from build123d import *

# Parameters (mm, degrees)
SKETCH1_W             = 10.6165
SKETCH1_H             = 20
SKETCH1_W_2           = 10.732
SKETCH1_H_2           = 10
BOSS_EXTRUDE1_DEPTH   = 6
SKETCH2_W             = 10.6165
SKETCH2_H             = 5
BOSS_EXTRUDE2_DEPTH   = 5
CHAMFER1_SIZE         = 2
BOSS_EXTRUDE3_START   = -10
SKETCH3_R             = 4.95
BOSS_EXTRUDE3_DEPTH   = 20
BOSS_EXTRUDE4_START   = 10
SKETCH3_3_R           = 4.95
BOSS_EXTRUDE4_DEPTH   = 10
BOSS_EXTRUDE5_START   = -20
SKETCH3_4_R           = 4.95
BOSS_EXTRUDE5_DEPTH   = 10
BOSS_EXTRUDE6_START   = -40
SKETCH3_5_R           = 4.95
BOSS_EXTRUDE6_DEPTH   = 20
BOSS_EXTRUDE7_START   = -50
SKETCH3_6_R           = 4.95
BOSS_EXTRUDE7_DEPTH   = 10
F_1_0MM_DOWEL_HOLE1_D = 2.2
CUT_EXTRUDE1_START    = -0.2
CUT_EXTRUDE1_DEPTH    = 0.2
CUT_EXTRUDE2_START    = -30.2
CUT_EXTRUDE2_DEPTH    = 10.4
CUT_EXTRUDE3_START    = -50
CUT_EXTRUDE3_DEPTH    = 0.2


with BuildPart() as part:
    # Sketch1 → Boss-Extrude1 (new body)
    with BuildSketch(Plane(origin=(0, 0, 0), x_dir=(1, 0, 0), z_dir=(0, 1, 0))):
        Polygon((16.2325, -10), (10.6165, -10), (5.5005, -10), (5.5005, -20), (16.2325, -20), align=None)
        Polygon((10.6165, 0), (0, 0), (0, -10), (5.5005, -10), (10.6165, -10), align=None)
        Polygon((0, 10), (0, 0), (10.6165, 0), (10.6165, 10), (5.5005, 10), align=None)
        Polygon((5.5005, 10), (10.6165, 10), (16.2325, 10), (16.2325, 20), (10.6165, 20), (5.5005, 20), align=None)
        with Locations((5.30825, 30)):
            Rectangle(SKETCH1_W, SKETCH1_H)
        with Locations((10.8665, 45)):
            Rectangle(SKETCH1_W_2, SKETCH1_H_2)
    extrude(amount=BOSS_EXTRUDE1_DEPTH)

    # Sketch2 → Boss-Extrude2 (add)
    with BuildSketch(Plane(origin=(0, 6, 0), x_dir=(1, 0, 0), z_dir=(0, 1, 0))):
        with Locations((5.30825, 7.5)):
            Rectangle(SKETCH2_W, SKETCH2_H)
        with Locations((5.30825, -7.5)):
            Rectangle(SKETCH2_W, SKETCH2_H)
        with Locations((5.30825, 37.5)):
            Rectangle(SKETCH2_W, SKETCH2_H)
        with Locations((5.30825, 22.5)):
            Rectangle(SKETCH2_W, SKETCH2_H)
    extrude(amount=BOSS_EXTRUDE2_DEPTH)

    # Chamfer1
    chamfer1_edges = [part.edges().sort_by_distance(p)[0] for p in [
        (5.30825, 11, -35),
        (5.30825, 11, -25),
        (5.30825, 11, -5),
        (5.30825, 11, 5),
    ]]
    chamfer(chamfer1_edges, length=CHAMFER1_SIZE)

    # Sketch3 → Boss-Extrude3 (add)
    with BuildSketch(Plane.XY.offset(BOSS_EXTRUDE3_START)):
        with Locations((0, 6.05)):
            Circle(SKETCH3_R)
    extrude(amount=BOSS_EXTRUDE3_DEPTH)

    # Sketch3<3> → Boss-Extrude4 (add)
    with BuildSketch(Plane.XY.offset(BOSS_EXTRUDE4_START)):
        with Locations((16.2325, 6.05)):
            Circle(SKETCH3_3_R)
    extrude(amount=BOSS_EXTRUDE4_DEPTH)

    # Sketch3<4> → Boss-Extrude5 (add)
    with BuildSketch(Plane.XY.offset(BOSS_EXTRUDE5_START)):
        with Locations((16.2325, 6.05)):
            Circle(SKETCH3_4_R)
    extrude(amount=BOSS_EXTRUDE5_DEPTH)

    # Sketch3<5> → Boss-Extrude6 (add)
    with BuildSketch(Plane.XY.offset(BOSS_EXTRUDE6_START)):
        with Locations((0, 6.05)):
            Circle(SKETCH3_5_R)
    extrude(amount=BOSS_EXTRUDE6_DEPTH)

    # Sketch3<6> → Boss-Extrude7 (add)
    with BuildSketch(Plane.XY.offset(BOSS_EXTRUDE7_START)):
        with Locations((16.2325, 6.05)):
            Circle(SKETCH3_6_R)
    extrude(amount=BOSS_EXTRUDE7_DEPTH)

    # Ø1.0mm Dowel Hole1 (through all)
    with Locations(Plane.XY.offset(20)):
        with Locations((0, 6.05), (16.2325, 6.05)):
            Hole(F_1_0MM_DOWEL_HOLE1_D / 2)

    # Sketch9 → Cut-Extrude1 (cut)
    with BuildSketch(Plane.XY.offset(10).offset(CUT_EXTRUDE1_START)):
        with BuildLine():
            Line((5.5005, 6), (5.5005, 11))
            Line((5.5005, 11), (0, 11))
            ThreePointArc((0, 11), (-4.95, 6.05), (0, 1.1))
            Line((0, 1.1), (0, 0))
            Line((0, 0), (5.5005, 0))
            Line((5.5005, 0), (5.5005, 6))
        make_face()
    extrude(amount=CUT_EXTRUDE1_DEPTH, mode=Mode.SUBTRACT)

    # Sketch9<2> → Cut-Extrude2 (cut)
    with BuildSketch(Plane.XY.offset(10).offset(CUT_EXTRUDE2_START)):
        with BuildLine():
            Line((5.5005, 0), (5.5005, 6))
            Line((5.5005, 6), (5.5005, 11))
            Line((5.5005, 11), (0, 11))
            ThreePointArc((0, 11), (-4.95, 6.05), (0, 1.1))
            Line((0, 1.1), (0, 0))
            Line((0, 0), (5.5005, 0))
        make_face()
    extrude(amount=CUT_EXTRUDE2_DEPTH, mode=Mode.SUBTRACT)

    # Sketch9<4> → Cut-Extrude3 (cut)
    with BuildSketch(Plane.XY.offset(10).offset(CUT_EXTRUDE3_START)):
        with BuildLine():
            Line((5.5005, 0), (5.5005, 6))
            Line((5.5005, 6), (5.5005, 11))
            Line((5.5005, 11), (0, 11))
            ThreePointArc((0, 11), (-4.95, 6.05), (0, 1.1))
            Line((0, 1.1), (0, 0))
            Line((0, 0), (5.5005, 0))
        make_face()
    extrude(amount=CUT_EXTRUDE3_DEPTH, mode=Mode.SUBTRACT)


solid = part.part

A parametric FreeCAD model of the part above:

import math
import FreeCAD as App
import Part
import Sketcher


def edges_at(feature, points):
    """Names of the edges that pass closest to the given points."""
    edges = feature.Shape.Edges
    near = lambda p: min(range(len(edges)), key=lambda i: edges[i].distToShape(Part.Vertex(*p))[0])
    return sorted({f"Edge{near(p) + 1}" for p in points})

doc = App.newDocument("Part")
body = doc.addObject("PartDesign::Body", "Body")

# Sketch on XZ plane
sketch1 = body.newObject("Sketcher::SketchObject", "Sketch")
sketch1.AttachmentSupport = (doc.getObject("XZ_Plane"), [""])
sketch1.MapMode = "FlatFace"
sketch1.addGeometry(Part.LineSegment(App.Vector(16.2325, 10, 0), App.Vector(10.6165, 10, 0)), False)
sketch1.addGeometry(Part.LineSegment(App.Vector(10.6165, 10, 0), App.Vector(10.6165, -10, 0)), False)
sketch1.addGeometry(Part.LineSegment(App.Vector(10.6165, -10, 0), App.Vector(16.2325, -10, 0)), False)
sketch1.addGeometry(Part.LineSegment(App.Vector(16.2325, -10, 0), App.Vector(16.2325, -20, 0)), False)
sketch1.addGeometry(Part.LineSegment(App.Vector(16.2325, -20, 0), App.Vector(10.6165, -20, 0)), False)
sketch1.addGeometry(Part.LineSegment(App.Vector(10.6165, -20, 0), App.Vector(10.6165, -40, 0)), False)
sketch1.addGeometry(Part.LineSegment(App.Vector(10.6165, -40, 0), App.Vector(16.2325, -40, 0)), False)
sketch1.addGeometry(Part.LineSegment(App.Vector(16.2325, -40, 0), App.Vector(16.2325, -50, 0)), False)
sketch1.addGeometry(Part.LineSegment(App.Vector(16.2325, -50, 0), App.Vector(5.5005, -50, 0)), False)
sketch1.addGeometry(Part.LineSegment(App.Vector(5.5005, -50, 0), App.Vector(5.5005, -40, 0)), False)
sketch1.addGeometry(Part.LineSegment(App.Vector(5.5005, -40, 0), App.Vector(0, -40, 0)), False)
sketch1.addGeometry(Part.LineSegment(App.Vector(0, -40, 0), App.Vector(0, -20, 0)), False)
sketch1.addGeometry(Part.LineSegment(App.Vector(0, -20, 0), App.Vector(5.5005, -20, 0)), False)
sketch1.addGeometry(Part.LineSegment(App.Vector(5.5005, -20, 0), App.Vector(5.5005, -10, 0)), False)
sketch1.addGeometry(Part.LineSegment(App.Vector(5.5005, -10, 0), App.Vector(0, -10, 0)), False)
sketch1.addGeometry(Part.LineSegment(App.Vector(0, -10, 0), App.Vector(0, 10, 0)), False)
sketch1.addGeometry(Part.LineSegment(App.Vector(0, 10, 0), App.Vector(5.5005, 10, 0)), False)
sketch1.addGeometry(Part.LineSegment(App.Vector(5.5005, 10, 0), App.Vector(5.5005, 20, 0)), False)
sketch1.addGeometry(Part.LineSegment(App.Vector(5.5005, 20, 0), App.Vector(16.2325, 20, 0)), False)
sketch1.addGeometry(Part.LineSegment(App.Vector(16.2325, 20, 0), App.Vector(16.2325, 10, 0)), False)
sketch1.addConstraint(Sketcher.Constraint("Coincident", 0, 2, 1, 1))
sketch1.addConstraint(Sketcher.Constraint("Coincident", 1, 2, 2, 1))
sketch1.addConstraint(Sketcher.Constraint("Coincident", 2, 2, 3, 1))
sketch1.addConstraint(Sketcher.Constraint("Coincident", 3, 2, 4, 1))
sketch1.addConstraint(Sketcher.Constraint("Coincident", 4, 2, 5, 1))
sketch1.addConstraint(Sketcher.Constraint("Coincident", 5, 2, 6, 1))
sketch1.addConstraint(Sketcher.Constraint("Coincident", 6, 2, 7, 1))
sketch1.addConstraint(Sketcher.Constraint("Coincident", 7, 2, 8, 1))
sketch1.addConstraint(Sketcher.Constraint("Coincident", 8, 2, 9, 1))
sketch1.addConstraint(Sketcher.Constraint("Coincident", 9, 2, 10, 1))
sketch1.addConstraint(Sketcher.Constraint("Coincident", 10, 2, 11, 1))
sketch1.addConstraint(Sketcher.Constraint("Coincident", 11, 2, 12, 1))
sketch1.addConstraint(Sketcher.Constraint("Coincident", 12, 2, 13, 1))
sketch1.addConstraint(Sketcher.Constraint("Coincident", 13, 2, 14, 1))
sketch1.addConstraint(Sketcher.Constraint("Coincident", 14, 2, 15, 1))
sketch1.addConstraint(Sketcher.Constraint("Coincident", 15, 2, 16, 1))
sketch1.addConstraint(Sketcher.Constraint("Coincident", 16, 2, 17, 1))
sketch1.addConstraint(Sketcher.Constraint("Coincident", 17, 2, 18, 1))
sketch1.addConstraint(Sketcher.Constraint("Coincident", 18, 2, 19, 1))
sketch1.addConstraint(Sketcher.Constraint("Coincident", 19, 2, 0, 1))
sketch1.addConstraint(Sketcher.Constraint("Horizontal", 0))
sketch1.addConstraint(Sketcher.Constraint("Vertical", 1))
sketch1.addConstraint(Sketcher.Constraint("Horizontal", 2))
sketch1.addConstraint(Sketcher.Constraint("Vertical", 3))
sketch1.addConstraint(Sketcher.Constraint("Horizontal", 4))
sketch1.addConstraint(Sketcher.Constraint("Vertical", 5))
sketch1.addConstraint(Sketcher.Constraint("Horizontal", 6))
sketch1.addConstraint(Sketcher.Constraint("Vertical", 7))
sketch1.addConstraint(Sketcher.Constraint("Horizontal", 8))
sketch1.addConstraint(Sketcher.Constraint("Vertical", 9))
sketch1.addConstraint(Sketcher.Constraint("Horizontal", 10))
sketch1.addConstraint(Sketcher.Constraint("Vertical", 11))
sketch1.addConstraint(Sketcher.Constraint("Horizontal", 12))
sketch1.addConstraint(Sketcher.Constraint("Vertical", 13))
sketch1.addConstraint(Sketcher.Constraint("Horizontal", 14))
sketch1.addConstraint(Sketcher.Constraint("Vertical", 15))
sketch1.addConstraint(Sketcher.Constraint("Horizontal", 16))
sketch1.addConstraint(Sketcher.Constraint("Vertical", 17))
sketch1.addConstraint(Sketcher.Constraint("Horizontal", 18))
sketch1.addConstraint(Sketcher.Constraint("Vertical", 19))
sketch1.addConstraint(Sketcher.Constraint("Symmetric", 14, 2, 15, 2, -1, 1))
sketch1.addConstraint(Sketcher.Constraint("Symmetric", 12, 2, 17, 2, -1))
sketch1.addConstraint(Sketcher.Constraint("Symmetric", 3, 2, 18, 2, -1))
sketch1.addConstraint(Sketcher.Constraint("PointOnObject", 10, 2, -2))
sketch1.addConstraint(Sketcher.Constraint("Horizontal", 6, 2, 9, 2))
sketch1.addConstraint(Sketcher.Constraint("Horizontal", 2, 2, 13, 2))
sketch1.addConstraint(Sketcher.Constraint("Horizontal", 0, 2, 15, 2))
sketch1.addConstraint(Sketcher.Constraint("Vertical", 1, 2, 4, 2))
sketch1.addConstraint(Sketcher.Constraint("Vertical", 3, 2, 6, 2))
sketch1.addConstraint(Sketcher.Constraint("Vertical", 9, 2, 12, 2))
sketch1.addConstraint(Sketcher.Constraint("Equal", 1, 5))
sketch1.addConstraint(Sketcher.Constraint("Equal", 3, 7))
sketch1.addConstraint(Sketcher.Constraint("DistanceY", 1, 2, 1, 1, 20.0))
sketch1.addConstraint(Sketcher.Constraint("DistanceY", 3, 2, 3, 1, 10.0))
sketch1.addConstraint(Sketcher.Constraint("DistanceX", 0, 2, 0, 1, 5.616))
sketch1.addConstraint(Sketcher.Constraint("DistanceX", 8, 2, 8, 1, 10.732))
sketch1.addConstraint(Sketcher.Constraint("DistanceX", 10, 2, 10, 1, 5.5005))
pad1 = body.newObject("PartDesign::Pad", "Pad")
pad1.Profile = sketch1
pad1.Length = 6
pad1.Reversed = True

# Sketch on XZ plane
sketch2 = body.newObject("Sketcher::SketchObject", "Sketch001")
sketch2.AttachmentSupport = (doc.getObject("XZ_Plane"), [""])
sketch2.MapMode = "FlatFace"
sketch2.AttachmentOffset = App.Placement(App.Vector(0, 0, -6), App.Rotation())
sketch2.addGeometry(Part.LineSegment(App.Vector(0, -10, 0), App.Vector(0, -5, 0)), False)
sketch2.addGeometry(Part.LineSegment(App.Vector(0, -5, 0), App.Vector(10.6165, -5, 0)), False)
sketch2.addGeometry(Part.LineSegment(App.Vector(10.6165, -5, 0), App.Vector(10.6165, -10, 0)), False)
sketch2.addGeometry(Part.LineSegment(App.Vector(10.6165, -10, 0), App.Vector(0, -10, 0)), False)
sketch2.addGeometry(Part.LineSegment(App.Vector(0, 5, 0), App.Vector(0, 10, 0)), False)
sketch2.addGeometry(Part.LineSegment(App.Vector(0, 10, 0), App.Vector(10.6165, 10, 0)), False)
sketch2.addGeometry(Part.LineSegment(App.Vector(10.6165, 10, 0), App.Vector(10.6165, 5, 0)), False)
sketch2.addGeometry(Part.LineSegment(App.Vector(10.6165, 5, 0), App.Vector(0, 5, 0)), False)
sketch2.addGeometry(Part.LineSegment(App.Vector(0, -40, 0), App.Vector(0, -35, 0)), False)
sketch2.addGeometry(Part.LineSegment(App.Vector(0, -35, 0), App.Vector(10.6165, -35, 0)), False)
sketch2.addGeometry(Part.LineSegment(App.Vector(10.6165, -35, 0), App.Vector(10.6165, -40, 0)), False)
sketch2.addGeometry(Part.LineSegment(App.Vector(10.6165, -40, 0), App.Vector(0, -40, 0)), False)
sketch2.addGeometry(Part.LineSegment(App.Vector(0, -25, 0), App.Vector(0, -20, 0)), False)
sketch2.addGeometry(Part.LineSegment(App.Vector(0, -20, 0), App.Vector(10.6165, -20, 0)), False)
sketch2.addGeometry(Part.LineSegment(App.Vector(10.6165, -20, 0), App.Vector(10.6165, -25, 0)), False)
sketch2.addGeometry(Part.LineSegment(App.Vector(10.6165, -25, 0), App.Vector(0, -25, 0)), False)
sketch2.addConstraint(Sketcher.Constraint("Coincident", 0, 2, 1, 1))
sketch2.addConstraint(Sketcher.Constraint("Coincident", 1, 2, 2, 1))
sketch2.addConstraint(Sketcher.Constraint("Coincident", 2, 2, 3, 1))
sketch2.addConstraint(Sketcher.Constraint("Coincident", 3, 2, 0, 1))
sketch2.addConstraint(Sketcher.Constraint("Coincident", 4, 2, 5, 1))
sketch2.addConstraint(Sketcher.Constraint("Coincident", 5, 2, 6, 1))
sketch2.addConstraint(Sketcher.Constraint("Coincident", 6, 2, 7, 1))
sketch2.addConstraint(Sketcher.Constraint("Coincident", 7, 2, 4, 1))
sketch2.addConstraint(Sketcher.Constraint("Coincident", 8, 2, 9, 1))
sketch2.addConstraint(Sketcher.Constraint("Coincident", 9, 2, 10, 1))
sketch2.addConstraint(Sketcher.Constraint("Coincident", 10, 2, 11, 1))
sketch2.addConstraint(Sketcher.Constraint("Coincident", 11, 2, 8, 1))
sketch2.addConstraint(Sketcher.Constraint("Coincident", 12, 2, 13, 1))
sketch2.addConstraint(Sketcher.Constraint("Coincident", 13, 2, 14, 1))
sketch2.addConstraint(Sketcher.Constraint("Coincident", 14, 2, 15, 1))
sketch2.addConstraint(Sketcher.Constraint("Coincident", 15, 2, 12, 1))
sketch2.addConstraint(Sketcher.Constraint("Vertical", 0))
sketch2.addConstraint(Sketcher.Constraint("Horizontal", 1))
sketch2.addConstraint(Sketcher.Constraint("Vertical", 2))
sketch2.addConstraint(Sketcher.Constraint("Horizontal", 3))
sketch2.addConstraint(Sketcher.Constraint("Vertical", 4))
sketch2.addConstraint(Sketcher.Constraint("Horizontal", 5))
sketch2.addConstraint(Sketcher.Constraint("Vertical", 6))
sketch2.addConstraint(Sketcher.Constraint("Horizontal", 7))
sketch2.addConstraint(Sketcher.Constraint("Vertical", 8))
sketch2.addConstraint(Sketcher.Constraint("Horizontal", 9))
sketch2.addConstraint(Sketcher.Constraint("Vertical", 10))
sketch2.addConstraint(Sketcher.Constraint("Horizontal", 11))
sketch2.addConstraint(Sketcher.Constraint("Vertical", 12))
sketch2.addConstraint(Sketcher.Constraint("Horizontal", 13))
sketch2.addConstraint(Sketcher.Constraint("Vertical", 14))
sketch2.addConstraint(Sketcher.Constraint("Horizontal", 15))
sketch2.addConstraint(Sketcher.Constraint("Symmetric", 3, 2, 4, 2, -1, 1))
sketch2.addConstraint(Sketcher.Constraint("Symmetric", 1, 2, 6, 2, -1))
sketch2.addConstraint(Sketcher.Constraint("PointOnObject", 0, 2, -2))
sketch2.addConstraint(Sketcher.Constraint("PointOnObject", 8, 2, -2))
sketch2.addConstraint(Sketcher.Constraint("PointOnObject", 12, 2, -2))
sketch2.addConstraint(Sketcher.Constraint("Vertical", 6, 2, 9, 2))
sketch2.addConstraint(Sketcher.Constraint("Vertical", 10, 2, 13, 2))
sketch2.addConstraint(Sketcher.Constraint("Equal", 6, 8))
sketch2.addConstraint(Sketcher.Constraint("Equal", 10, 12))
sketch2.addConstraint(Sketcher.Constraint("DistanceY", 0, 1, 0, 2, 5.0))
sketch2.addConstraint(Sketcher.Constraint("DistanceY", 0, 2, -1, 1, 5.0))
sketch2.addConstraint(Sketcher.Constraint("DistanceY", 8, 2, -1, 1, 35.0))
sketch2.addConstraint(Sketcher.Constraint("DistanceY", 12, 2, -1, 1, 20.0))
sketch2.addConstraint(Sketcher.Constraint("DistanceX", 1, 1, 1, 2, 10.6165))
pad2 = body.newObject("PartDesign::Pad", "Pad001")
pad2.Profile = sketch2
pad2.Length = 5
pad2.Reversed = True
doc.recompute()

chamfer = body.newObject("PartDesign::Chamfer", "Chamfer")
chamfer.Base = (pad2, edges_at(pad2, [
    (5.308, 11, -35),
    (5.308, 11, -25),
    (5.308, 11, -5),
    (5.308, 11, 5),
]))
chamfer.Size = 2

# Sketch on XY plane
sketch3 = body.newObject("Sketcher::SketchObject", "Sketch002")
sketch3.AttachmentSupport = (doc.getObject("XY_Plane"), [""])
sketch3.MapMode = "FlatFace"
sketch3.AttachmentOffset = App.Placement(App.Vector(0, 0, -10), App.Rotation())
sketch3.addGeometry(Part.Circle(App.Vector(0, 6.05, 0), App.Vector(0, 0, 1), 4.95), False)
sketch3.addConstraint(Sketcher.Constraint("PointOnObject", 0, 3, -2))
sketch3.addConstraint(Sketcher.Constraint("Diameter", 0, 9.9))
sketch3.addConstraint(Sketcher.Constraint("DistanceY", -1, 1, 0, 3, 6.05))
pad3 = body.newObject("PartDesign::Pad", "Pad002")
pad3.Profile = sketch3
pad3.Length = 20

# Sketch on XY plane
sketch4 = body.newObject("Sketcher::SketchObject", "Sketch003")
sketch4.AttachmentSupport = (doc.getObject("XY_Plane"), [""])
sketch4.MapMode = "FlatFace"
sketch4.AttachmentOffset = App.Placement(App.Vector(0, 0, 10), App.Rotation())
sketch4.addGeometry(Part.Circle(App.Vector(16.2325, 6.05, 0), App.Vector(0, 0, 1), 4.95), False)
sketch4.addConstraint(Sketcher.Constraint("Diameter", 0, 9.9))
sketch4.addConstraint(Sketcher.Constraint("DistanceY", -1, 1, 0, 3, 6.05))
sketch4.addConstraint(Sketcher.Constraint("DistanceX", -1, 1, 0, 3, 16.2325))
pad4 = body.newObject("PartDesign::Pad", "Pad003")
pad4.Profile = sketch4
pad4.Length = 10

# Sketch on XY plane
sketch5 = body.newObject("Sketcher::SketchObject", "Sketch004")
sketch5.AttachmentSupport = (doc.getObject("XY_Plane"), [""])
sketch5.MapMode = "FlatFace"
sketch5.AttachmentOffset = App.Placement(App.Vector(0, 0, -20), App.Rotation())
sketch5.addGeometry(Part.Circle(App.Vector(16.2325, 6.05, 0), App.Vector(0, 0, 1), 4.95), False)
sketch5.addConstraint(Sketcher.Constraint("Diameter", 0, 9.9))
sketch5.addConstraint(Sketcher.Constraint("DistanceY", -1, 1, 0, 3, 6.05))
sketch5.addConstraint(Sketcher.Constraint("DistanceX", -1, 1, 0, 3, 16.2325))
pad5 = body.newObject("PartDesign::Pad", "Pad004")
pad5.Profile = sketch5
pad5.Length = 10

# Sketch on XY plane
sketch6 = body.newObject("Sketcher::SketchObject", "Sketch005")
sketch6.AttachmentSupport = (doc.getObject("XY_Plane"), [""])
sketch6.MapMode = "FlatFace"
sketch6.AttachmentOffset = App.Placement(App.Vector(0, 0, -40), App.Rotation())
sketch6.addGeometry(Part.Circle(App.Vector(0, 6.05, 0), App.Vector(0, 0, 1), 4.95), False)
sketch6.addConstraint(Sketcher.Constraint("PointOnObject", 0, 3, -2))
sketch6.addConstraint(Sketcher.Constraint("Diameter", 0, 9.9))
sketch6.addConstraint(Sketcher.Constraint("DistanceY", -1, 1, 0, 3, 6.05))
pad6 = body.newObject("PartDesign::Pad", "Pad005")
pad6.Profile = sketch6
pad6.Length = 20

# Sketch on XY plane
sketch7 = body.newObject("Sketcher::SketchObject", "Sketch006")
sketch7.AttachmentSupport = (doc.getObject("XY_Plane"), [""])
sketch7.MapMode = "FlatFace"
sketch7.AttachmentOffset = App.Placement(App.Vector(0, 0, -50), App.Rotation())
sketch7.addGeometry(Part.Circle(App.Vector(16.2325, 6.05, 0), App.Vector(0, 0, 1), 4.95), False)
sketch7.addConstraint(Sketcher.Constraint("Diameter", 0, 9.9))
sketch7.addConstraint(Sketcher.Constraint("DistanceY", -1, 1, 0, 3, 6.05))
sketch7.addConstraint(Sketcher.Constraint("DistanceX", -1, 1, 0, 3, 16.2325))
pad7 = body.newObject("PartDesign::Pad", "Pad006")
pad7.Profile = sketch7
pad7.Length = 10

# Sketch on XY plane
sketch8 = body.newObject("Sketcher::SketchObject", "Sketch007")
sketch8.AttachmentSupport = (doc.getObject("XY_Plane"), [""])
sketch8.MapMode = "FlatFace"
sketch8.AttachmentOffset = App.Placement(App.Vector(0, 0, 20), App.Rotation())
sketch8.addGeometry(Part.Circle(App.Vector(0, 6.05, 0), App.Vector(0, 0, 1), 1.1), False)
sketch8.addGeometry(Part.Circle(App.Vector(16.2325, 6.05, 0), App.Vector(0, 0, 1), 1.1), False)
sketch8.addConstraint(Sketcher.Constraint("Equal", 0, 1))
sketch8.addConstraint(Sketcher.Constraint("PointOnObject", 0, 3, -2))
sketch8.addConstraint(Sketcher.Constraint("Horizontal", 0, 3, 1, 3))
sketch8.addConstraint(Sketcher.Constraint("Diameter", 0, 2.2))
sketch8.addConstraint(Sketcher.Constraint("DistanceY", -1, 1, 0, 3, 6.05))
sketch8.addConstraint(Sketcher.Constraint("DistanceX", -1, 1, 1, 3, 16.2325))
doc.recompute()
hole = body.newObject("PartDesign::Hole", "Hole")
hole.Profile = sketch8
hole.ThreadType = "None"
hole.Diameter = 2.2
hole.DepthType = "ThroughAll"

# Sketch on XY plane
sketch9 = body.newObject("Sketcher::SketchObject", "Sketch008")
sketch9.AttachmentSupport = (doc.getObject("XY_Plane"), [""])
sketch9.MapMode = "FlatFace"
sketch9.AttachmentOffset = App.Placement(App.Vector(0, 0, 9.8), App.Rotation())
sketch9.addGeometry(Part.LineSegment(App.Vector(5.5005, 11, 0), App.Vector(0, 11, 0)), False)
sketch9.addGeometry(Part.ArcOfCircle(Part.Circle(App.Vector(0, 6.05, 0), App.Vector(0, 0, 1), 4.95), math.radians(90), math.radians(270)), False)
sketch9.addGeometry(Part.LineSegment(App.Vector(0, 1.1, 0), App.Vector(0, 0, 0)), False)
sketch9.addGeometry(Part.LineSegment(App.Vector(0, 0, 0), App.Vector(5.5005, 0, 0)), False)
sketch9.addGeometry(Part.LineSegment(App.Vector(5.5005, 0, 0), App.Vector(5.5005, 11, 0)), False)
sketch9.addConstraint(Sketcher.Constraint("Tangent", 0, 2, 1, 1))
sketch9.addConstraint(Sketcher.Constraint("Coincident", 1, 2, 2, 1))
sketch9.addConstraint(Sketcher.Constraint("Coincident", 2, 2, 3, 1))
sketch9.addConstraint(Sketcher.Constraint("Coincident", 3, 2, 4, 1))
sketch9.addConstraint(Sketcher.Constraint("Coincident", 4, 2, 0, 1))
sketch9.addConstraint(Sketcher.Constraint("Horizontal", 0))
sketch9.addConstraint(Sketcher.Constraint("Vertical", 2))
sketch9.addConstraint(Sketcher.Constraint("Horizontal", 3))
sketch9.addConstraint(Sketcher.Constraint("Vertical", 4))
sketch9.addConstraint(Sketcher.Constraint("Coincident", 2, 2, -1, 1))
sketch9.addConstraint(Sketcher.Constraint("PointOnObject", 1, 3, -2))
sketch9.addConstraint(Sketcher.Constraint("DistanceY", 4, 1, 4, 2, 11.0))
sketch9.addConstraint(Sketcher.Constraint("Radius", 1, 4.95))
sketch9.addConstraint(Sketcher.Constraint("DistanceX", 0, 2, 0, 1, 5.5005))
pocket1 = body.newObject("PartDesign::Pocket", "Pocket")
pocket1.Profile = sketch9
pocket1.Length = 0.2
pocket1.Reversed = True

# Sketch on XY plane
sketch10 = body.newObject("Sketcher::SketchObject", "Sketch009")
sketch10.AttachmentSupport = (doc.getObject("XY_Plane"), [""])
sketch10.MapMode = "FlatFace"
sketch10.AttachmentOffset = App.Placement(App.Vector(0, 0, -20.2), App.Rotation())
sketch10.addGeometry(Part.LineSegment(App.Vector(5.5005, 0, 0), App.Vector(5.5005, 11, 0)), False)
sketch10.addGeometry(Part.LineSegment(App.Vector(5.5005, 11, 0), App.Vector(0, 11, 0)), False)
sketch10.addGeometry(Part.ArcOfCircle(Part.Circle(App.Vector(0, 6.05, 0), App.Vector(0, 0, 1), 4.95), math.radians(90), math.radians(270)), False)
sketch10.addGeometry(Part.LineSegment(App.Vector(0, 1.1, 0), App.Vector(0, 0, 0)), False)
sketch10.addGeometry(Part.LineSegment(App.Vector(0, 0, 0), App.Vector(5.5005, 0, 0)), False)
sketch10.addConstraint(Sketcher.Constraint("Coincident", 0, 2, 1, 1))
sketch10.addConstraint(Sketcher.Constraint("Tangent", 1, 2, 2, 1))
sketch10.addConstraint(Sketcher.Constraint("Coincident", 2, 2, 3, 1))
sketch10.addConstraint(Sketcher.Constraint("Coincident", 3, 2, 4, 1))
sketch10.addConstraint(Sketcher.Constraint("Coincident", 4, 2, 0, 1))
sketch10.addConstraint(Sketcher.Constraint("Vertical", 0))
sketch10.addConstraint(Sketcher.Constraint("Horizontal", 1))
sketch10.addConstraint(Sketcher.Constraint("Vertical", 3))
sketch10.addConstraint(Sketcher.Constraint("Horizontal", 4))
sketch10.addConstraint(Sketcher.Constraint("Coincident", 3, 2, -1, 1))
sketch10.addConstraint(Sketcher.Constraint("PointOnObject", 2, 3, -2))
sketch10.addConstraint(Sketcher.Constraint("DistanceY", 0, 1, 0, 2, 11.0))
sketch10.addConstraint(Sketcher.Constraint("Radius", 2, 4.95))
sketch10.addConstraint(Sketcher.Constraint("DistanceX", 1, 2, 1, 1, 5.5005))
pocket2 = body.newObject("PartDesign::Pocket", "Pocket001")
pocket2.Profile = sketch10
pocket2.Length = 10.4
pocket2.Reversed = True

# Sketch on XY plane
sketch11 = body.newObject("Sketcher::SketchObject", "Sketch010")
sketch11.AttachmentSupport = (doc.getObject("XY_Plane"), [""])
sketch11.MapMode = "FlatFace"
sketch11.AttachmentOffset = App.Placement(App.Vector(0, 0, -40), App.Rotation())
sketch11.addGeometry(Part.LineSegment(App.Vector(5.5005, 0, 0), App.Vector(5.5005, 11, 0)), False)
sketch11.addGeometry(Part.LineSegment(App.Vector(5.5005, 11, 0), App.Vector(0, 11, 0)), False)
sketch11.addGeometry(Part.ArcOfCircle(Part.Circle(App.Vector(0, 6.05, 0), App.Vector(0, 0, 1), 4.95), math.radians(90), math.radians(270)), False)
sketch11.addGeometry(Part.LineSegment(App.Vector(0, 1.1, 0), App.Vector(0, 0, 0)), False)
sketch11.addGeometry(Part.LineSegment(App.Vector(0, 0, 0), App.Vector(5.5005, 0, 0)), False)
sketch11.addConstraint(Sketcher.Constraint("Coincident", 0, 2, 1, 1))
sketch11.addConstraint(Sketcher.Constraint("Tangent", 1, 2, 2, 1))
sketch11.addConstraint(Sketcher.Constraint("Coincident", 2, 2, 3, 1))
sketch11.addConstraint(Sketcher.Constraint("Coincident", 3, 2, 4, 1))
sketch11.addConstraint(Sketcher.Constraint("Coincident", 4, 2, 0, 1))
sketch11.addConstraint(Sketcher.Constraint("Vertical", 0))
sketch11.addConstraint(Sketcher.Constraint("Horizontal", 1))
sketch11.addConstraint(Sketcher.Constraint("Vertical", 3))
sketch11.addConstraint(Sketcher.Constraint("Horizontal", 4))
sketch11.addConstraint(Sketcher.Constraint("Coincident", 3, 2, -1, 1))
sketch11.addConstraint(Sketcher.Constraint("PointOnObject", 2, 3, -2))
sketch11.addConstraint(Sketcher.Constraint("DistanceY", 0, 1, 0, 2, 11.0))
sketch11.addConstraint(Sketcher.Constraint("Radius", 2, 4.95))
sketch11.addConstraint(Sketcher.Constraint("DistanceX", 1, 2, 1, 1, 5.5005))
pocket3 = body.newObject("PartDesign::Pocket", "Pocket002")
pocket3.Profile = sketch11
pocket3.Length = 0.2
pocket3.Reversed = True

doc.recompute()
